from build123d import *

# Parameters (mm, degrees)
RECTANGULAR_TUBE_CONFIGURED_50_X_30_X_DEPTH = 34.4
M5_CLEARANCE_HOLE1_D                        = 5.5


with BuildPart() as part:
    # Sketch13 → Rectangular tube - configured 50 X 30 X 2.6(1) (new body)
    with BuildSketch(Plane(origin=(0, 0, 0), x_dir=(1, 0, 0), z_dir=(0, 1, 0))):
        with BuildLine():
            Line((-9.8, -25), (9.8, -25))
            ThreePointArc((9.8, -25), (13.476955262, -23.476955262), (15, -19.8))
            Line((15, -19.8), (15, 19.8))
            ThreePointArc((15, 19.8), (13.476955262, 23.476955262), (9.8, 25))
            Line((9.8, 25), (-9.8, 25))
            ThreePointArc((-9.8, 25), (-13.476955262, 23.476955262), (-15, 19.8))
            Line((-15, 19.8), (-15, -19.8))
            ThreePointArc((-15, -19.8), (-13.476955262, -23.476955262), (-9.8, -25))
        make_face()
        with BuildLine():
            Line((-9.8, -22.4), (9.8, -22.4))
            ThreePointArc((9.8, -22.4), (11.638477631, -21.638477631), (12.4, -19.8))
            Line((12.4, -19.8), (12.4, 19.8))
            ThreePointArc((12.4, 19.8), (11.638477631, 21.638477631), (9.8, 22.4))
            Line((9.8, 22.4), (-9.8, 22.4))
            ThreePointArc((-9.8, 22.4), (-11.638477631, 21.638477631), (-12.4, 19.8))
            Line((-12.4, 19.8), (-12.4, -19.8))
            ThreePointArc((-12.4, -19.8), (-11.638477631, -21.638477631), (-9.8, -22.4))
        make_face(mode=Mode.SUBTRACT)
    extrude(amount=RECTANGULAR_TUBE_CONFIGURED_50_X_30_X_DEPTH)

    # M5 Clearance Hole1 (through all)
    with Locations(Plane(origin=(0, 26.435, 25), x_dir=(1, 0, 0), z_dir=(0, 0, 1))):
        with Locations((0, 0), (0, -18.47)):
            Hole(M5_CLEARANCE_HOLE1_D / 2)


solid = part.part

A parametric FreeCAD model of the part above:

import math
import FreeCAD as App
import Part
import Sketcher
from FreeCAD import Vector

doc = App.newDocument("Part")
params = doc.addObject("Spreadsheet::Sheet", "Params")
for row, (alias, value) in enumerate([
    ("sketch1_radius", "5.2 mm"),
    ("sketch1_radius2", "2.6 mm"),
    ("sketch1_width", "19.6 mm"),
    ("sketch1_height", "39.6 mm"),
    ("pad1_length", "34.4 mm"),
    ("sketch2_diameter", "5.5 mm"),
    ("hole_diameter", "5.5 mm"),
], start=1):
    params.set(f"A{row}", alias)
    params.set(f"B{row}", "=" + value)
    params.setAlias(f"B{row}", alias)

body = doc.addObject("PartDesign::Body", "Body")

sketch1 = doc.addObject("Sketcher::SketchObject", "Sketch")
body.addObject(sketch1)
sketch1.AttachmentSupport = (doc.XZ_Plane, [""])
sketch1.MapMode = "FlatFace"
sketch1.addGeometry(Part.LineSegment(Vector(-9.8, 25, 0), Vector(9.8, 25, 0)), False)
sketch1.addGeometry(Part.ArcOfCircle(Part.Circle(Vector(9.8, 19.8, 0), Vector(0, 0, 1), 5.2), math.radians(0), math.radians(90)), False)
sketch1.addGeometry(Part.LineSegment(Vector(15, 19.8, 0), Vector(15, -19.8, 0)), False)
sketch1.addGeometry(Part.ArcOfCircle(Part.Circle(Vector(9.8, -19.8, 0), Vector(0, 0, 1), 5.2), math.radians(-90), math.radians(0)), False)
sketch1.addGeometry(Part.LineSegment(Vector(9.8, -25, 0), Vector(-9.8, -25, 0)), False)
sketch1.addGeometry(Part.ArcOfCircle(Part.Circle(Vector(-9.8, -19.8, 0), Vector(0, 0, 1), 5.2), math.radians(-180), math.radians(-90)), False)
sketch1.addGeometry(Part.LineSegment(Vector(-15, -19.8, 0), Vector(-15, 19.8, 0)), False)
sketch1.addGeometry(Part.ArcOfCircle(Part.Circle(Vector(-9.8, 19.8, 0), Vector(0, 0, 1), 5.2), math.radians(90), math.radians(180)), False)
sketch1.addGeometry(Part.LineSegment(Vector(9.8, 22.4, 0), Vector(-9.8, 22.4, 0)), False)
sketch1.addGeometry(Part.ArcOfCircle(Part.Circle(Vector(-9.8, 19.8, 0), Vector(0, 0, 1), 2.6), math.radians(90), math.radians(180)), False)
sketch1.addGeometry(Part.LineSegment(Vector(-12.4, 19.8, 0), Vector(-12.4, -19.8, 0)), False)
sketch1.addGeometry(Part.ArcOfCircle(Part.Circle(Vector(-9.8, -19.8, 0), Vector(0, 0, 1), 2.6), math.radians(180), math.radians(270)), False)
sketch1.addGeometry(Part.LineSegment(Vector(-9.8, -22.4, 0), Vector(9.8, -22.4, 0)), False)
sketch1.addGeometry(Part.ArcOfCircle(Part.Circle(Vector(9.8, -19.8, 0), Vector(0, 0, 1), 2.6), math.radians(-90), math.radians(0)), False)
sketch1.addGeometry(Part.LineSegment(Vector(12.4, -19.8, 0), Vector(12.4, 19.8, 0)), False)
sketch1.addGeometry(Part.ArcOfCircle(Part.Circle(Vector(9.8, 19.8, 0), Vector(0, 0, 1), 2.6), math.radians(0), math.radians(90)), False)
sketch1.addConstraint(Sketcher.Constraint("Tangent", 0, 2, 1, 2))
sketch1.addConstraint(Sketcher.Constraint("Tangent", 1, 1, 2, 1))
sketch1.addConstraint(Sketcher.Constraint("Tangent", 2, 2, 3, 2))
sketch1.addConstraint(Sketcher.Constraint("Tangent", 3, 1, 4, 1))
sketch1.addConstraint(Sketcher.Constraint("Tangent", 4, 2, 5, 2))
sketch1.addConstraint(Sketcher.Constraint("Tangent", 5, 1, 6, 1))
sketch1.addConstraint(Sketcher.Constraint("Tangent", 6, 2, 7, 2))
sketch1.addConstraint(Sketcher.Constraint("Tangent", 7, 1, 0, 1))
sketch1.addConstraint(Sketcher.Constraint("Tangent", 8, 2, 9, 1))
sketch1.addConstraint(Sketcher.Constraint("Tangent", 9, 2, 10, 1))
sketch1.addConstraint(Sketcher.Constraint("Tangent", 10, 2, 11, 1))
sketch1.addConstraint(Sketcher.Constraint("Tangent", 11, 2, 12, 1))
sketch1.addConstraint(Sketcher.Constraint("Tangent", 12, 2, 13, 1))
sketch1.addConstraint(Sketcher.Constraint("Tangent", 13, 2, 14, 1))
sketch1.addConstraint(Sketcher.Constraint("Tangent", 14, 2, 15, 1))
sketch1.addConstraint(Sketcher.Constraint("Tangent", 15, 2, 8, 1))
sketch1.addConstraint(Sketcher.Constraint("Horizontal", 0))
sketch1.addConstraint(Sketcher.Constraint("Vertical", 2))
sketch1.addConstraint(Sketcher.Constraint("Horizontal", 4))
sketch1.addConstraint(Sketcher.Constraint("Vertical", 6))
sketch1.addConstraint(Sketcher.Constraint("Horizontal", 8))
sketch1.addConstraint(Sketcher.Constraint("Vertical", 10))
sketch1.addConstraint(Sketcher.Constraint("Horizontal", 12))
sketch1.addConstraint(Sketcher.Constraint("Vertical", 14))
sketch1.addConstraint(Sketcher.Constraint("Coincident", 9, 3, 7, 3))
sketch1.addConstraint(Sketcher.Constraint("Coincident", 11, 3, 5, 3))
sketch1.addConstraint(Sketcher.Constraint("Coincident", 13, 3, 3, 3))
sketch1.addConstraint(Sketcher.Constraint("Equal", 1, 3))
sketch1.addConstraint(Sketcher.Constraint("Equal", 3, 5))
sketch1.addConstraint(Sketcher.Constraint("Equal", 5, 7))
sketch1.addConstraint(Sketcher.Constraint("Equal", 13, 15))
sketch1.addConstraint(Sketcher.Constraint("Symmetric", 1, 3, 5, 3, -1, 1))
sketch1.addConstraint(Sketcher.Constraint("Radius", 1, 5.2))
sketch1.addConstraint(Sketcher.Constraint("Radius", 9, 2.6))
sketch1.addConstraint(Sketcher.Constraint("DistanceX", 0, 1, 0, 2, 19.6))
sketch1.addConstraint(Sketcher.Constraint("DistanceY", 2, 2, 2, 1, 39.6))
sketch1.setExpression("Constraints[32]", "Params.sketch1_radius")
sketch1.setExpression("Constraints[33]", "Params.sketch1_radius2")
sketch1.setExpression("Constraints[34]", "Params.sketch1_width")
sketch1.setExpression("Constraints[35]", "Params.sketch1_height")
pad1 = doc.addObject("PartDesign::Pad", "Pad")
body.addObject(pad1)
pad1.Profile = sketch1
pad1.setExpression("Length", "Params.pad1_length")
pad1.Reversed = True

sketch2 = doc.addObject("Sketcher::SketchObject", "Sketch001")
body.addObject(sketch2)
sketch2.AttachmentSupport = (doc.XY_Plane, [""])
sketch2.MapMode = "FlatFace"
sketch2.AttachmentOffset = App.Placement(Vector(0, 0, 25), App.Rotation())
sketch2.addGeometry(Part.Circle(Vector(0, 26.435, 0), Vector(0, 0, 1), 2.75), False)
sketch2.addGeometry(Part.Circle(Vector(0, 7.965, 0), Vector(0, 0, 1), 2.75), False)
sketch2.addConstraint(Sketcher.Constraint("Equal", 0, 1))
sketch2.addConstraint(Sketcher.Constraint("PointOnObject", 0, 3, -2))
sketch2.addConstraint(Sketcher.Constraint("PointOnObject", 1, 3, -2))
sketch2.addConstraint(Sketcher.Constraint("Diameter", 0, 5.5))
sketch2.addConstraint(Sketcher.Constraint("DistanceY", 1, 3, 0, 3, 18.47))
sketch2.addConstraint(Sketcher.Constraint("DistanceY", -1, 1, 0, 3, 26.435))
sketch2.setExpression("Constraints[3]", "Params.sketch2_diameter")
doc.recompute()
hole = doc.addObject("PartDesign::Hole", "Hole")
body.addObject(hole)
hole.Profile = sketch2
hole.ThreadType = "None"
hole.setExpression("Diameter", "Params.hole_diameter")
hole.DepthType = "ThroughAll"

doc.recompute()
